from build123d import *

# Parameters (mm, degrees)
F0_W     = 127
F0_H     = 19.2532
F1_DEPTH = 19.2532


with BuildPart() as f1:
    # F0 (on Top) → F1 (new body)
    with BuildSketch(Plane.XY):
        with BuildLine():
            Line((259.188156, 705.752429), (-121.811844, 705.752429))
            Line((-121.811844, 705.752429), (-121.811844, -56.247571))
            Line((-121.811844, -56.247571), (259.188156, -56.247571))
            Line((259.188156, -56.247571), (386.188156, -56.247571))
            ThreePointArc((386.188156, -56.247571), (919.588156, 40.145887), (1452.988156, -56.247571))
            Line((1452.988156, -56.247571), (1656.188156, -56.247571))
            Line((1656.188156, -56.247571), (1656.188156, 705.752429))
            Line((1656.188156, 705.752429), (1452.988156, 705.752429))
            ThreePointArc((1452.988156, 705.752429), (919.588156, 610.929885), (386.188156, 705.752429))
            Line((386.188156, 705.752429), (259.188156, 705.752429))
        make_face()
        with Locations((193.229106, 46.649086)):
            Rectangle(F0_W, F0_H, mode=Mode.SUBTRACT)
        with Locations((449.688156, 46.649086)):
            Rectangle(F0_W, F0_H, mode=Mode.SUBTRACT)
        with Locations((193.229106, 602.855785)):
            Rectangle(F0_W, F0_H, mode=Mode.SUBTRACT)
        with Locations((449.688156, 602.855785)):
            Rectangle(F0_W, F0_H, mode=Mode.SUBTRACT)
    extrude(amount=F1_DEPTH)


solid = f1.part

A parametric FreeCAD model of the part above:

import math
import FreeCAD as App
import Part
import Sketcher
Q = App.Units.Quantity

doc = App.newDocument("Part")
body = doc.addObject("PartDesign::Body", "Body")

sketch1 = doc.addObject("Sketcher::SketchObject", "Sketch")
body.addObject(sketch1)
sketch1.AttachmentSupport = (doc.XY_Plane, [""])
sketch1.MapMode = "FlatFace"
sketch1.addGeometry(Part.LineSegment(App.Vector(-121.811844, 705.752429, 0), App.Vector(-121.811844, -56.247571, 0)), False)
sketch1.addGeometry(Part.LineSegment(App.Vector(-121.811844, -56.247571, 0), App.Vector(386.188156, -56.247571, 0)), False)
sketch1.addGeometry(Part.ArcOfCircle(Part.Circle(App.Vector(919.588156, -1483.854107, 0), App.Vector(0, 0, 1), 1523.999994), math.radians(69.512685), math.radians(110.487315)), False)
sketch1.addGeometry(Part.LineSegment(App.Vector(1452.988156, -56.247571, 0), App.Vector(1656.188156, -56.247571, 0)), False)
sketch1.addGeometry(Part.LineSegment(App.Vector(1656.188156, -56.247571, 0), App.Vector(1656.188156, 705.752429, 0)), False)
sketch1.addGeometry(Part.LineSegment(App.Vector(1656.188156, 705.752429, 0), App.Vector(1452.988156, 705.752429, 0)), False)
sketch1.addGeometry(Part.ArcOfCircle(Part.Circle(App.Vector(919.588156, 2158.593882, 0), App.Vector(0, 0, 1), 1547.663997), math.radians(-110.160337), math.radians(-69.839663)), False)
sketch1.addGeometry(Part.LineSegment(App.Vector(386.188156, 705.752429, 0), App.Vector(-121.811844, 705.752429, 0)), False)
sketch1.addGeometry(Part.LineSegment(App.Vector(256.729106, 37.022486, 0), App.Vector(129.729106, 37.022486, 0)), False)
sketch1.addGeometry(Part.LineSegment(App.Vector(129.729106, 37.022486, 0), App.Vector(129.729106, 56.275686, 0)), False)
sketch1.addGeometry(Part.LineSegment(App.Vector(129.729106, 56.275686, 0), App.Vector(256.729106, 56.275686, 0)), False)
sketch1.addGeometry(Part.LineSegment(App.Vector(256.729106, 56.275686, 0), App.Vector(256.729106, 37.022486, 0)), False)
sketch1.addGeometry(Part.LineSegment(App.Vector(513.188156, 37.022486, 0), App.Vector(386.188156, 37.022486, 0)), False)
sketch1.addGeometry(Part.LineSegment(App.Vector(386.188156, 37.022486, 0), App.Vector(386.188156, 56.275686, 0)), False)
sketch1.addGeometry(Part.LineSegment(App.Vector(386.188156, 56.275686, 0), App.Vector(513.188156, 56.275686, 0)), False)
sketch1.addGeometry(Part.LineSegment(App.Vector(513.188156, 56.275686, 0), App.Vector(513.188156, 37.022486, 0)), False)
sketch1.addGeometry(Part.LineSegment(App.Vector(256.729106, 593.229185, 0), App.Vector(129.729106, 593.229185, 0)), False)
sketch1.addGeometry(Part.LineSegment(App.Vector(129.729106, 593.229185, 0), App.Vector(129.729106, 612.482385, 0)), False)
sketch1.addGeometry(Part.LineSegment(App.Vector(129.729106, 612.482385, 0), App.Vector(256.729106, 612.482385, 0)), False)
sketch1.addGeometry(Part.LineSegment(App.Vector(256.729106, 612.482385, 0), App.Vector(256.729106, 593.229185, 0)), False)
sketch1.addGeometry(Part.LineSegment(App.Vector(513.188156, 593.229185, 0), App.Vector(386.188156, 593.229185, 0)), False)
sketch1.addGeometry(Part.LineSegment(App.Vector(386.188156, 593.229185, 0), App.Vector(386.188156, 612.482385, 0)), False)
sketch1.addGeometry(Part.LineSegment(App.Vector(386.188156, 612.482385, 0), App.Vector(513.188156, 612.482385, 0)), False)
sketch1.addGeometry(Part.LineSegment(App.Vector(513.188156, 612.482385, 0), App.Vector(513.188156, 593.229185, 0)), False)
sketch1.addConstraint(Sketcher.Constraint("Coincident", 0, 2, 1, 1))
sketch1.addConstraint(Sketcher.Constraint("Coincident", 1, 2, 2, 2))
sketch1.addConstraint(Sketcher.Constraint("Coincident", 2, 1, 3, 1))
sketch1.addConstraint(Sketcher.Constraint("Coincident", 3, 2, 4, 1))
sketch1.addConstraint(Sketcher.Constraint("Coincident", 4, 2, 5, 1))
sketch1.addConstraint(Sketcher.Constraint("Coincident", 5, 2, 6, 2))
sketch1.addConstraint(Sketcher.Constraint("Coincident", 6, 1, 7, 1))
sketch1.addConstraint(Sketcher.Constraint("Coincident", 7, 2, 0, 1))
sketch1.addConstraint(Sketcher.Constraint("Coincident", 8, 2, 9, 1))
sketch1.addConstraint(Sketcher.Constraint("Coincident", 9, 2, 10, 1))
sketch1.addConstraint(Sketcher.Constraint("Coincident", 10, 2, 11, 1))
sketch1.addConstraint(Sketcher.Constraint("Coincident", 11, 2, 8, 1))
sketch1.addConstraint(Sketcher.Constraint("Coincident", 12, 2, 13, 1))
sketch1.addConstraint(Sketcher.Constraint("Coincident", 13, 2, 14, 1))
sketch1.addConstraint(Sketcher.Constraint("Coincident", 14, 2, 15, 1))
sketch1.addConstraint(Sketcher.Constraint("Coincident", 15, 2, 12, 1))
sketch1.addConstraint(Sketcher.Constraint("Coincident", 16, 2, 17, 1))
sketch1.addConstraint(Sketcher.Constraint("Coincident", 17, 2, 18, 1))
sketch1.addConstraint(Sketcher.Constraint("Coincident", 18, 2, 19, 1))
sketch1.addConstraint(Sketcher.Constraint("Coincident", 19, 2, 16, 1))
sketch1.addConstraint(Sketcher.Constraint("Coincident", 20, 2, 21, 1))
sketch1.addConstraint(Sketcher.Constraint("Coincident", 21, 2, 22, 1))
sketch1.addConstraint(Sketcher.Constraint("Coincident", 22, 2, 23, 1))
sketch1.addConstraint(Sketcher.Constraint("Coincident", 23, 2, 20, 1))
sketch1.addConstraint(Sketcher.Constraint("Vertical", 0))
sketch1.addConstraint(Sketcher.Constraint("Horizontal", 1))
sketch1.addConstraint(Sketcher.Constraint("Horizontal", 3))
sketch1.addConstraint(Sketcher.Constraint("Vertical", 4))
sketch1.addConstraint(Sketcher.Constraint("Horizontal", 5))
sketch1.addConstraint(Sketcher.Constraint("Horizontal", 7))
sketch1.addConstraint(Sketcher.Constraint("Horizontal", 8))
sketch1.addConstraint(Sketcher.Constraint("Vertical", 9))
sketch1.addConstraint(Sketcher.Constraint("Horizontal", 10))
sketch1.addConstraint(Sketcher.Constraint("Vertical", 11))
sketch1.addConstraint(Sketcher.Constraint("Horizontal", 12))
sketch1.addConstraint(Sketcher.Constraint("Vertical", 13))
sketch1.addConstraint(Sketcher.Constraint("Horizontal", 14))
sketch1.addConstraint(Sketcher.Constraint("Vertical", 15))
sketch1.addConstraint(Sketcher.Constraint("Horizontal", 16))
sketch1.addConstraint(Sketcher.Constraint("Vertical", 17))
sketch1.addConstraint(Sketcher.Constraint("Horizontal", 18))
sketch1.addConstraint(Sketcher.Constraint("Vertical", 19))
sketch1.addConstraint(Sketcher.Constraint("Horizontal", 20))
sketch1.addConstraint(Sketcher.Constraint("Vertical", 21))
sketch1.addConstraint(Sketcher.Constraint("Horizontal", 22))
sketch1.addConstraint(Sketcher.Constraint("Vertical", 23))
sketch1.addConstraint(Sketcher.Constraint("Horizontal", 11, 2, 12, 2))
sketch1.addConstraint(Sketcher.Constraint("Horizontal", 10, 2, 13, 2))
sketch1.addConstraint(Sketcher.Constraint("Horizontal", 19, 2, 20, 2))
sketch1.addConstraint(Sketcher.Constraint("Horizontal", 18, 2, 21, 2))
sketch1.addConstraint(Sketcher.Constraint("Vertical", 2, 3, 6, 3))
sketch1.addConstraint(Sketcher.Constraint("Vertical", 9, 2, 16, 2))
sketch1.addConstraint(Sketcher.Constraint("Vertical", 11, 2, 18, 2))
sketch1.addConstraint(Sketcher.Constraint("Vertical", 13, 2, 20, 2))
sketch1.addConstraint(Sketcher.Constraint("Vertical", 15, 2, 22, 2))
sketch1.addConstraint(Sketcher.Constraint("Equal", 3, 5))
sketch1.addConstraint(Sketcher.Constraint("Equal", 1, 7))
sketch1.addConstraint(Sketcher.Constraint("Equal", 10, 12))
sketch1.addConstraint(Sketcher.Constraint("Equal", 0, 4))
sketch1.addConstraint(Sketcher.Constraint("Equal", 15, 17))
sketch1.addConstraint(Sketcher.Constraint("DistanceX", 1, 1, 1, 2, Q("20 in")))
sketch1.addConstraint(Sketcher.Constraint("DistanceX", 3, 1, 3, 2, Q("8 in")))
sketch1.addConstraint(Sketcher.Constraint("DistanceX", 8, 2, 8, 1, Q("5 in")))
sketch1.addConstraint(Sketcher.Constraint("DistanceY", 0, 2, 0, 1, Q("30 in")))
sketch1.addConstraint(Sketcher.Constraint("DistanceX", 0, 2, 2, 3, Q("41 in")))
sketch1.addConstraint(Sketcher.Constraint("DistanceX", 1, 2, 14, 2, Q("5 in")))
sketch1.addConstraint(Sketcher.Constraint("DistanceY", 9, 1, 9, 2, Q("0.758 in")))
sketch1.addConstraint(Sketcher.Constraint("Radius", 2, Q("1523.999994 mm")))
sketch1.addConstraint(Sketcher.Constraint("Radius", 6, Q("1547.663997 mm")))
sketch1.addConstraint(Sketcher.Constraint("DistanceY", 9, 2, 16, 2, Q("536.953499 mm")))
sketch1.addConstraint(Sketcher.Constraint("DistanceY", -1, 1, 6, 3, Q("2158.593882 mm")))
sketch1.addConstraint(Sketcher.Constraint("DistanceX", 0, 2, 8, 2, Q("251.54095 mm")))
sketch1.addConstraint(Sketcher.Constraint("DistanceX", -1, 1, 2, 3, Q("919.588156 mm")))
sketch1.addConstraint(Sketcher.Constraint("DistanceY", -1, 1, 8, 2, Q("37.022486 mm")))
pad1 = doc.addObject("PartDesign::Pad", "Pad")
body.addObject(pad1)
pad1.Profile = sketch1
pad1.Length = Q("0.758 in")

doc.recompute()
